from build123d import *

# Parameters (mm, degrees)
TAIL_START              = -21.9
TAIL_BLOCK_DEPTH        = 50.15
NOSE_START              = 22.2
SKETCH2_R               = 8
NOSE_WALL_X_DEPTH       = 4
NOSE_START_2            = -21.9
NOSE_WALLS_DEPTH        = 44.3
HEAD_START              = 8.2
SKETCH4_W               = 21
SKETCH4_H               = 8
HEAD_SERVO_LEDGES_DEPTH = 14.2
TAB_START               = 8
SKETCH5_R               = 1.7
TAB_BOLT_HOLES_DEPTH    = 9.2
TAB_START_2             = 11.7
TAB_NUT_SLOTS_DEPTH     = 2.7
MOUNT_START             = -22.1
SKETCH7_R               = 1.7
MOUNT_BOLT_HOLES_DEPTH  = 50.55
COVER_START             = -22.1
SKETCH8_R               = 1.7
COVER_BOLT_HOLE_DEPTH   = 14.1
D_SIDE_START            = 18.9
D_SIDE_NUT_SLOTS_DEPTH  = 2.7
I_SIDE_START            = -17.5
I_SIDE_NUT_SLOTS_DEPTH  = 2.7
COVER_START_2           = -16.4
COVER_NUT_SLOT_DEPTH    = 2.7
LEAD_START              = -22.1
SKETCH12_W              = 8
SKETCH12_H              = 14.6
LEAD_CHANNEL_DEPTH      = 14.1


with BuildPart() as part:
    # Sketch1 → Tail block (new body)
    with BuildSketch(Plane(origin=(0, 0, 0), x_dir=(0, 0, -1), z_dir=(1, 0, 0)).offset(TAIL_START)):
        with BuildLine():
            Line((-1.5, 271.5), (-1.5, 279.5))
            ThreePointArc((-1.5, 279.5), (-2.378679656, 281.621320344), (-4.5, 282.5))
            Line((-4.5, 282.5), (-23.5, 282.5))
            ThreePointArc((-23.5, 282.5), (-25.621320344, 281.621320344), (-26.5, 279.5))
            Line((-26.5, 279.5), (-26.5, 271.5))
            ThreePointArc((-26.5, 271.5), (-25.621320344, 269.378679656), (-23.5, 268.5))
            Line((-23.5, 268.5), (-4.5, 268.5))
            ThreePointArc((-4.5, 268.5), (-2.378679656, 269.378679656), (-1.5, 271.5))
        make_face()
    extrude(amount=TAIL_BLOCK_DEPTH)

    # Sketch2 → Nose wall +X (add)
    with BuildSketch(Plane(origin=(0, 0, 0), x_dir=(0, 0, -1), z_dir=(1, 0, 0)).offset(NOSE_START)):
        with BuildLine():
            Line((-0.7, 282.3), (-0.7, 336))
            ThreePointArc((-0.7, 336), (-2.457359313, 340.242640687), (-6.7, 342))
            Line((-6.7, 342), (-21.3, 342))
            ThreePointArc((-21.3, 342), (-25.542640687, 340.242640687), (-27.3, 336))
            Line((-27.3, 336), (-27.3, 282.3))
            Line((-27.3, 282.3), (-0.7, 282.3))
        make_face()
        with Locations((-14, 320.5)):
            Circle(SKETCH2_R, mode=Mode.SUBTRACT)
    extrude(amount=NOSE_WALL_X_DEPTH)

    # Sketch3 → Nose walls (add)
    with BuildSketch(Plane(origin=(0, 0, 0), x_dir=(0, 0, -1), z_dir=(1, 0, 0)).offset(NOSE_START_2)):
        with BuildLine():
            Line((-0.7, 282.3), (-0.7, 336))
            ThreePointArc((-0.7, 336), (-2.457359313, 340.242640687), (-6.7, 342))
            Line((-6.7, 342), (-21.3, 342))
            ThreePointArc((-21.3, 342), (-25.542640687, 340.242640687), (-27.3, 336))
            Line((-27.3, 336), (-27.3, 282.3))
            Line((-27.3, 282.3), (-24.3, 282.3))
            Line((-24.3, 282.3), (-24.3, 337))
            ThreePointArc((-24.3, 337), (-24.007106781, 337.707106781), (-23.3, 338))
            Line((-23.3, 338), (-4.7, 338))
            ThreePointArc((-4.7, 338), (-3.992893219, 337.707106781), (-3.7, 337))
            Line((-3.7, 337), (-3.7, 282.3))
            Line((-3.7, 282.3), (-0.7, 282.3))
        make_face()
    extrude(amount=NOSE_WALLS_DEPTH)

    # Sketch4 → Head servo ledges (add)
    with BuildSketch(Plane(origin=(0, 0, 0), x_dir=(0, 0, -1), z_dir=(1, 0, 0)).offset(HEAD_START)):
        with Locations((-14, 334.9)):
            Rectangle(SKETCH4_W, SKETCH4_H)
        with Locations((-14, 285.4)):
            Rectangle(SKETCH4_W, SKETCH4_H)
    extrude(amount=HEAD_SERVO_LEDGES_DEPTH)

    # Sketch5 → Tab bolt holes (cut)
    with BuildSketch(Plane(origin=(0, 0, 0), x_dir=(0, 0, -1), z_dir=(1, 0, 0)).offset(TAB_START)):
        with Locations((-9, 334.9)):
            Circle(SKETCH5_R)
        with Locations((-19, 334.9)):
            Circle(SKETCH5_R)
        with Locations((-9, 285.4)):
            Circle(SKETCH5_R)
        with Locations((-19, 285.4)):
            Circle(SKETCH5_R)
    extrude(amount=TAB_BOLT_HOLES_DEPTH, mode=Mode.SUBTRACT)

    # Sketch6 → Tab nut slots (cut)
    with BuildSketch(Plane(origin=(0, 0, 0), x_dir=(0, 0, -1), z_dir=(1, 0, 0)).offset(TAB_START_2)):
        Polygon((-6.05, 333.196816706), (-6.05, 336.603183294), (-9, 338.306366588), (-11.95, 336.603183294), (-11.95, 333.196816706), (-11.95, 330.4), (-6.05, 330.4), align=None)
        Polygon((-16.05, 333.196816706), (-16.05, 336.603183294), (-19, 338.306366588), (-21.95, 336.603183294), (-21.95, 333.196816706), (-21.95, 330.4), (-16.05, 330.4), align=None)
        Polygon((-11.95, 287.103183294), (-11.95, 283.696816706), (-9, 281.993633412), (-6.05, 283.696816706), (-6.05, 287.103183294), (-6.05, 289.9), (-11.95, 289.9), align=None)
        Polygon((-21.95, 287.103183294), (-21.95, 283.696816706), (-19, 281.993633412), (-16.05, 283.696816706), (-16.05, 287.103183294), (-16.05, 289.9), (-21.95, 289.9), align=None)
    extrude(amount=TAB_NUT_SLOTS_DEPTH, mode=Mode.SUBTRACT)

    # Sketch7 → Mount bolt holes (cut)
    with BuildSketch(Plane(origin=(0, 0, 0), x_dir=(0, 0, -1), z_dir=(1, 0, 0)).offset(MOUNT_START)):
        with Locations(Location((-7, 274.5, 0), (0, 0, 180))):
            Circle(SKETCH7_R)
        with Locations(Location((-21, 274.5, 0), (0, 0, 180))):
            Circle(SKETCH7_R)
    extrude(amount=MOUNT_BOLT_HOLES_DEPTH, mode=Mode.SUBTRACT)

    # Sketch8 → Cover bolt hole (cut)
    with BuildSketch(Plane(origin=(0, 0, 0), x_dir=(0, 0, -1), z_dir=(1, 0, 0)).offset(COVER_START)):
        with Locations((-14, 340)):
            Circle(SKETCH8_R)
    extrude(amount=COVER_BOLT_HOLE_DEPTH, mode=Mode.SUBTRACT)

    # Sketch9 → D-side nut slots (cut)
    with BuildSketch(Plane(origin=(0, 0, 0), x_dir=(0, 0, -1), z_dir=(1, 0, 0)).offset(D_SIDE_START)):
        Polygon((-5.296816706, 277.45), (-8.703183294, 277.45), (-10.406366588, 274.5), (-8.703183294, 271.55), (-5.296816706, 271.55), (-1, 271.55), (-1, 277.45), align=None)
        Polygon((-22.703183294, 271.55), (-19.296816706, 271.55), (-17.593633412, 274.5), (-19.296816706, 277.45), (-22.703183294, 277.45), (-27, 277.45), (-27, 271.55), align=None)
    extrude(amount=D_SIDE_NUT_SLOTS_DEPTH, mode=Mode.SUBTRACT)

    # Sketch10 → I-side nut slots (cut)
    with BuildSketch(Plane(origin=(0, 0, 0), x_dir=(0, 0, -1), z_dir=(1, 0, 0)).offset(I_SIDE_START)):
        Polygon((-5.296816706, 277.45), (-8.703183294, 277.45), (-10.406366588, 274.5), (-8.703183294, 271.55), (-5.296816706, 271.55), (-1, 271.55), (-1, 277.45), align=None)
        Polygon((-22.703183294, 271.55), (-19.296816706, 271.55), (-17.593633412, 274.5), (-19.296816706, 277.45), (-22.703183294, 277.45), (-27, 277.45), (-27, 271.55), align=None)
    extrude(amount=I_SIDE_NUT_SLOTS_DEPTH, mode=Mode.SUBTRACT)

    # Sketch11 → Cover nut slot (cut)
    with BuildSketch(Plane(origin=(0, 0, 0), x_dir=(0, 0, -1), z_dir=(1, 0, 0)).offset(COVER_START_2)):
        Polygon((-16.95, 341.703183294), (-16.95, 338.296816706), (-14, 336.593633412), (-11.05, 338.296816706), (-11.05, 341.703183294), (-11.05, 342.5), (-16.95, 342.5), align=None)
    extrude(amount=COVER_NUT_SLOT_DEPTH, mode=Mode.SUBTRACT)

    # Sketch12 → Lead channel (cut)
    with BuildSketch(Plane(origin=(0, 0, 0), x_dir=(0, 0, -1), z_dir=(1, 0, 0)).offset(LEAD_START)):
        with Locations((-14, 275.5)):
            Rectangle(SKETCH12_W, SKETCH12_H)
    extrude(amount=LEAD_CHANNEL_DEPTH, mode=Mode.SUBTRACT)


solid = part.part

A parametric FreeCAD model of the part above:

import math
import FreeCAD as App
import Part
import Sketcher

V = App.Vector
Q = App.Units.Quantity

doc = App.newDocument("Part")
body = doc.addObject("PartDesign::Body", "Body")

sketch1 = doc.addObject("Sketcher::SketchObject", "Sketch")
body.addObject(sketch1)
sketch1.AttachmentSupport = (doc.YZ_Plane, [""])
sketch1.MapMode = "FlatFace"
sketch1.AttachmentOffset = App.Placement(V(0, 0, -21.9), App.Rotation())
sketch1.addGeometry(Part.LineSegment(V(271.5, 1.5, 0), V(279.5, 1.5, 0)), False)
sketch1.addGeometry(Part.ArcOfCircle(Part.Circle(V(279.5, 4.5, 0), V(0, 0, 1), 3), math.radians(-90), math.radians(0)), False)
sketch1.addGeometry(Part.LineSegment(V(282.5, 4.5, 0), V(282.5, 23.5, 0)), False)
sketch1.addGeometry(Part.ArcOfCircle(Part.Circle(V(279.5, 23.5, 0), V(0, 0, 1), 3), math.radians(0), math.radians(90)), False)
sketch1.addGeometry(Part.LineSegment(V(279.5, 26.5, 0), V(271.5, 26.5, 0)), False)
sketch1.addGeometry(Part.ArcOfCircle(Part.Circle(V(271.5, 23.5, 0), V(0, 0, 1), 3), math.radians(90), math.radians(180)), False)
sketch1.addGeometry(Part.LineSegment(V(268.5, 23.5, 0), V(268.5, 4.5, 0)), False)
sketch1.addGeometry(Part.ArcOfCircle(Part.Circle(V(271.5, 4.5, 0), V(0, 0, 1), 3), math.radians(180), math.radians(270)), False)
sketch1.addConstraint(Sketcher.Constraint("Tangent", 0, 2, 1, 1))
sketch1.addConstraint(Sketcher.Constraint("Tangent", 1, 2, 2, 1))
sketch1.addConstraint(Sketcher.Constraint("Tangent", 2, 2, 3, 1))
sketch1.addConstraint(Sketcher.Constraint("Tangent", 3, 2, 4, 1))
sketch1.addConstraint(Sketcher.Constraint("Tangent", 4, 2, 5, 1))
sketch1.addConstraint(Sketcher.Constraint("Tangent", 5, 2, 6, 1))
sketch1.addConstraint(Sketcher.Constraint("Tangent", 6, 2, 7, 1))
sketch1.addConstraint(Sketcher.Constraint("Tangent", 7, 2, 0, 1))
sketch1.addConstraint(Sketcher.Constraint("Horizontal", 0))
sketch1.addConstraint(Sketcher.Constraint("Vertical", 2))
sketch1.addConstraint(Sketcher.Constraint("Horizontal", 4))
sketch1.addConstraint(Sketcher.Constraint("Vertical", 6))
sketch1.addConstraint(Sketcher.Constraint("Equal", 1, 3))
sketch1.addConstraint(Sketcher.Constraint("Equal", 3, 5))
sketch1.addConstraint(Sketcher.Constraint("Equal", 5, 7))
sketch1.addConstraint(Sketcher.Constraint("Radius", 1, 3.0))
sketch1.addConstraint(Sketcher.Constraint("DistanceX", 0, 1, 0, 2, 8.0))
sketch1.addConstraint(Sketcher.Constraint("DistanceY", 2, 1, 2, 2, 19.0))
sketch1.addConstraint(Sketcher.Constraint("DistanceX", -1, 1, 1, 3, 279.5))
sketch1.addConstraint(Sketcher.Constraint("DistanceY", -1, 1, 1, 3, 4.5))
pad1 = doc.addObject("PartDesign::Pad", "Pad")
body.addObject(pad1)
pad1.Profile = sketch1
pad1.Length = 50.15

sketch2 = doc.addObject("Sketcher::SketchObject", "Sketch001")
body.addObject(sketch2)
sketch2.AttachmentSupport = (doc.YZ_Plane, [""])
sketch2.MapMode = "FlatFace"
sketch2.AttachmentOffset = App.Placement(V(0, 0, 22.2), App.Rotation())
sketch2.addGeometry(Part.LineSegment(V(282, 1, 0), V(336, 1, 0)), False)
sketch2.addGeometry(Part.ArcOfCircle(Part.Circle(V(336, 7, 0), V(0, 0, 1), 6), math.radians(-90), math.radians(0)), False)
sketch2.addGeometry(Part.LineSegment(V(342, 7, 0), V(342, 21, 0)), False)
sketch2.addGeometry(Part.ArcOfCircle(Part.Circle(V(336, 21, 0), V(0, 0, 1), 6), math.radians(0), math.radians(90)), False)
sketch2.addGeometry(Part.LineSegment(V(336, 27, 0), V(282, 27, 0)), False)
sketch2.addGeometry(Part.LineSegment(V(282, 27, 0), V(282, 1, 0)), False)
sketch2.addGeometry(Part.Circle(V(320, 14, 0), V(0, 0, 1), 8), False)
sketch2.addConstraint(Sketcher.Constraint("Tangent", 0, 2, 1, 1))
sketch2.addConstraint(Sketcher.Constraint("Tangent", 1, 2, 2, 1))
sketch2.addConstraint(Sketcher.Constraint("Tangent", 2, 2, 3, 1))
sketch2.addConstraint(Sketcher.Constraint("Tangent", 3, 2, 4, 1))
sketch2.addConstraint(Sketcher.Constraint("Coincident", 4, 2, 5, 1))
sketch2.addConstraint(Sketcher.Constraint("Coincident", 5, 2, 0, 1))
sketch2.addConstraint(Sketcher.Constraint("Horizontal", 0))
sketch2.addConstraint(Sketcher.Constraint("Vertical", 2))
sketch2.addConstraint(Sketcher.Constraint("Horizontal", 4))
sketch2.addConstraint(Sketcher.Constraint("Vertical", 5))
sketch2.addConstraint(Sketcher.Constraint("Equal", 1, 3))
sketch2.addConstraint(Sketcher.Constraint("Diameter", 6, 16.0))
sketch2.addConstraint(Sketcher.Constraint("Radius", 1, 6.0))
sketch2.addConstraint(Sketcher.Constraint("DistanceX", 0, 1, 0, 2, 53.7))
sketch2.addConstraint(Sketcher.Constraint("DistanceY", 2, 1, 2, 2, 14.6))
sketch2.addConstraint(Sketcher.Constraint("DistanceX", -1, 1, 1, 3, 336.0))
sketch2.addConstraint(Sketcher.Constraint("DistanceY", -1, 1, 6, 3, 14.0))
sketch2.addConstraint(Sketcher.Constraint("DistanceY", -1, 1, 1, 3, 6.7))
sketch2.addConstraint(Sketcher.Constraint("DistanceX", -1, 1, 6, 3, 320.5))
pad2 = doc.addObject("PartDesign::Pad", "Pad001")
body.addObject(pad2)
pad2.Profile = sketch2
pad2.Length = 4

sketch3 = doc.addObject("Sketcher::SketchObject", "Sketch002")
body.addObject(sketch3)
sketch3.AttachmentSupport = (doc.YZ_Plane, [""])
sketch3.MapMode = "FlatFace"
sketch3.AttachmentOffset = App.Placement(V(0, 0, -21.9), App.Rotation())
sketch3.addGeometry(Part.LineSegment(V(282.3, 0.7, 0), V(336, 0.7, 0)), False)
sketch3.addGeometry(Part.ArcOfCircle(Part.Circle(V(336, 6.7, 0), V(0, 0, 1), 6), math.radians(-90), math.radians(0)), False)
sketch3.addGeometry(Part.LineSegment(V(342, 6.7, 0), V(342, 21.3, 0)), False)
sketch3.addGeometry(Part.ArcOfCircle(Part.Circle(V(336, 21.3, 0), V(0, 0, 1), 6), math.radians(0), math.radians(90)), False)
sketch3.addGeometry(Part.LineSegment(V(336, 27.3, 0), V(282.3, 27.3, 0)), False)
sketch3.addGeometry(Part.LineSegment(V(282.3, 27.3, 0), V(282.3, 24.3, 0)), False)
sketch3.addGeometry(Part.LineSegment(V(282.3, 24.3, 0), V(337, 24.3, 0)), False)
sketch3.addGeometry(Part.ArcOfCircle(Part.Circle(V(337, 23.3, 0), V(0, 0, 1), 1), math.radians(0), math.radians(90)), False)
sketch3.addGeometry(Part.LineSegment(V(338, 23.3, 0), V(338, 4.7, 0)), False)
sketch3.addGeometry(Part.ArcOfCircle(Part.Circle(V(337, 4.7, 0), V(0, 0, 1), 1), math.radians(-90), math.radians(0)), False)
sketch3.addGeometry(Part.LineSegment(V(337, 3.7, 0), V(282.3, 3.7, 0)), False)
sketch3.addGeometry(Part.LineSegment(V(282.3, 3.7, 0), V(282.3, 0.7, 0)), False)
sketch3.addConstraint(Sketcher.Constraint("Tangent", 0, 2, 1, 1))
sketch3.addConstraint(Sketcher.Constraint("Tangent", 1, 2, 2, 1))
sketch3.addConstraint(Sketcher.Constraint("Tangent", 2, 2, 3, 1))
sketch3.addConstraint(Sketcher.Constraint("Tangent", 3, 2, 4, 1))
sketch3.addConstraint(Sketcher.Constraint("Coincident", 4, 2, 5, 1))
sketch3.addConstraint(Sketcher.Constraint("Coincident", 5, 2, 6, 1))
sketch3.addConstraint(Sketcher.Constraint("Tangent", 6, 2, 7, 2))
sketch3.addConstraint(Sketcher.Constraint("Tangent", 7, 1, 8, 1))
sketch3.addConstraint(Sketcher.Constraint("Tangent", 8, 2, 9, 2))
sketch3.addConstraint(Sketcher.Constraint("Tangent", 9, 1, 10, 1))
sketch3.addConstraint(Sketcher.Constraint("Coincident", 10, 2, 11, 1))
sketch3.addConstraint(Sketcher.Constraint("Coincident", 11, 2, 0, 1))
sketch3.addConstraint(Sketcher.Constraint("Horizontal", 0))
sketch3.addConstraint(Sketcher.Constraint("Vertical", 2))
sketch3.addConstraint(Sketcher.Constraint("Horizontal", 4))
sketch3.addConstraint(Sketcher.Constraint("Vertical", 5))
sketch3.addConstraint(Sketcher.Constraint("Horizontal", 6))
sketch3.addConstraint(Sketcher.Constraint("Vertical", 8))
sketch3.addConstraint(Sketcher.Constraint("Horizontal", 10))
sketch3.addConstraint(Sketcher.Constraint("Vertical", 11))
sketch3.addConstraint(Sketcher.Constraint("Equal", 1, 3))
sketch3.addConstraint(Sketcher.Constraint("Equal", 7, 9))
sketch3.addConstraint(Sketcher.Constraint("Vertical", 5, 2, 10, 2))
sketch3.addConstraint(Sketcher.Constraint("Equal", 5, 11))
sketch3.addConstraint(Sketcher.Constraint("Radius", 1, 6.0))
sketch3.addConstraint(Sketcher.Constraint("Radius", 7, 1.0))
sketch3.addConstraint(Sketcher.Constraint("DistanceY", 5, 2, 5, 1, 3.0))
sketch3.addConstraint(Sketcher.Constraint("DistanceX", 0, 1, 0, 2, 53.7))
sketch3.addConstraint(Sketcher.Constraint("DistanceX", 6, 1, 6, 2, 54.7))
sketch3.addConstraint(Sketcher.Constraint("DistanceY", 2, 1, 2, 2, 14.6))
sketch3.addConstraint(Sketcher.Constraint("DistanceX", -1, 1, 1, 3, 336.0))
sketch3.addConstraint(Sketcher.Constraint("DistanceY", -1, 1, 1, 3, 6.7))
pad3 = doc.addObject("PartDesign::Pad", "Pad002")
body.addObject(pad3)
pad3.Profile = sketch3
pad3.Length = 44.3

sketch4 = doc.addObject("Sketcher::SketchObject", "Sketch003")
body.addObject(sketch4)
sketch4.AttachmentSupport = (doc.YZ_Plane, [""])
sketch4.MapMode = "FlatFace"
sketch4.AttachmentOffset = App.Placement(V(0, 0, 8.2), App.Rotation())
sketch4.addGeometry(Part.LineSegment(V(339, 24, 0), V(331, 24, 0)), False)
sketch4.addGeometry(Part.LineSegment(V(331, 24, 0), V(331, 4, 0)), False)
sketch4.addGeometry(Part.LineSegment(V(331, 4, 0), V(339, 4, 0)), False)
sketch4.addGeometry(Part.LineSegment(V(339, 4, 0), V(339, 24, 0)), False)
sketch4.addGeometry(Part.LineSegment(V(289, 24, 0), V(281, 24, 0)), False)
sketch4.addGeometry(Part.LineSegment(V(281, 24, 0), V(281, 4, 0)), False)
sketch4.addGeometry(Part.LineSegment(V(281, 4, 0), V(289, 4, 0)), False)
sketch4.addGeometry(Part.LineSegment(V(289, 4, 0), V(289, 24, 0)), False)
sketch4.addConstraint(Sketcher.Constraint("Coincident", 0, 2, 1, 1))
sketch4.addConstraint(Sketcher.Constraint("Coincident", 1, 2, 2, 1))
sketch4.addConstraint(Sketcher.Constraint("Coincident", 2, 2, 3, 1))
sketch4.addConstraint(Sketcher.Constraint("Coincident", 3, 2, 0, 1))
sketch4.addConstraint(Sketcher.Constraint("Coincident", 4, 2, 5, 1))
sketch4.addConstraint(Sketcher.Constraint("Coincident", 5, 2, 6, 1))
sketch4.addConstraint(Sketcher.Constraint("Coincident", 6, 2, 7, 1))
sketch4.addConstraint(Sketcher.Constraint("Coincident", 7, 2, 4, 1))
sketch4.addConstraint(Sketcher.Constraint("Horizontal", 0))
sketch4.addConstraint(Sketcher.Constraint("Vertical", 1))
sketch4.addConstraint(Sketcher.Constraint("Horizontal", 2))
sketch4.addConstraint(Sketcher.Constraint("Vertical", 3))
sketch4.addConstraint(Sketcher.Constraint("Horizontal", 4))
sketch4.addConstraint(Sketcher.Constraint("Vertical", 5))
sketch4.addConstraint(Sketcher.Constraint("Horizontal", 6))
sketch4.addConstraint(Sketcher.Constraint("Vertical", 7))
sketch4.addConstraint(Sketcher.Constraint("Horizontal", 3, 2, 4, 2))
sketch4.addConstraint(Sketcher.Constraint("Horizontal", 2, 2, 5, 2))
sketch4.addConstraint(Sketcher.Constraint("Equal", 2, 4))
sketch4.addConstraint(Sketcher.Constraint("DistanceX", 0, 2, 0, 1, 8.0))
sketch4.addConstraint(Sketcher.Constraint("DistanceY", 1, 2, 1, 1, 21.0))
sketch4.addConstraint(Sketcher.Constraint("DistanceX", -1, 1, 0, 2, 330.9))
sketch4.addConstraint(Sketcher.Constraint("DistanceY", -1, 1, 0, 2, 24.5))
sketch4.addConstraint(Sketcher.Constraint("DistanceX", -1, 1, 4, 2, 281.4))
pad4 = doc.addObject("PartDesign::Pad", "Pad003")
body.addObject(pad4)
pad4.Profile = sketch4
pad4.Length = 14.2

sketch5 = doc.addObject("Sketcher::SketchObject", "Sketch004")
body.addObject(sketch5)
sketch5.AttachmentSupport = (doc.YZ_Plane, [""])
sketch5.MapMode = "FlatFace"
sketch5.AttachmentOffset = App.Placement(V(0, 0, 8), App.Rotation())
sketch5.addGeometry(Part.Circle(V(334.9, 9, 0), V(0, 0, 1), 1.7), False)
sketch5.addGeometry(Part.Circle(V(334.9, 19, 0), V(0, 0, 1), 1.7), False)
sketch5.addGeometry(Part.Circle(V(285.4, 9, 0), V(0, 0, 1), 1.7), False)
sketch5.addGeometry(Part.Circle(V(285.4, 19, 0), V(0, 0, 1), 1.7), False)
sketch5.addConstraint(Sketcher.Constraint("Equal", 0, 1))
sketch5.addConstraint(Sketcher.Constraint("Equal", 1, 2))
sketch5.addConstraint(Sketcher.Constraint("Equal", 2, 3))
sketch5.addConstraint(Sketcher.Constraint("Horizontal", 0, 3, 2, 3))
sketch5.addConstraint(Sketcher.Constraint("Horizontal", 1, 3, 3, 3))
sketch5.addConstraint(Sketcher.Constraint("Vertical", 0, 3, 1, 3))
sketch5.addConstraint(Sketcher.Constraint("Vertical", 2, 3, 3, 3))
sketch5.addConstraint(Sketcher.Constraint("Diameter", 0, 3.4))
sketch5.addConstraint(Sketcher.Constraint("DistanceY", -1, 1, 0, 3, 9.0))
sketch5.addConstraint(Sketcher.Constraint("DistanceY", -1, 1, 1, 3, 19.0))
sketch5.addConstraint(Sketcher.Constraint("DistanceX", -1, 1, 0, 3, 334.9))
sketch5.addConstraint(Sketcher.Constraint("DistanceX", -1, 1, 2, 3, 285.4))
pocket1 = doc.addObject("PartDesign::Pocket", "Pocket")
body.addObject(pocket1)
pocket1.Profile = sketch5
pocket1.Length = 9.2
pocket1.Reversed = True

sketch6 = doc.addObject("Sketcher::SketchObject", "Sketch005")
body.addObject(sketch6)
sketch6.AttachmentSupport = (doc.YZ_Plane, [""])
sketch6.MapMode = "FlatFace"
sketch6.AttachmentOffset = App.Placement(V(0, 0, 11.7), App.Rotation())
sketch6.addGeometry(Part.LineSegment(V(336.6, 6, 0), V(338.3, 9, 0)), False)
sketch6.addGeometry(Part.LineSegment(V(338.3, 9, 0), V(336.6, 11.9, 0)), False)
sketch6.addGeometry(Part.LineSegment(V(336.6, 11.9, 0), V(330.4, 11.9, 0)), False)
sketch6.addGeometry(Part.LineSegment(V(330.4, 11.9, 0), V(330.4, 6, 0)), False)
sketch6.addGeometry(Part.LineSegment(V(330.4, 6, 0), V(336.6, 6, 0)), False)
sketch6.addGeometry(Part.LineSegment(V(336.6, 16.1, 0), V(338.3, 19, 0)), False)
sketch6.addGeometry(Part.LineSegment(V(338.3, 19, 0), V(336.6, 21.9, 0)), False)
sketch6.addGeometry(Part.LineSegment(V(336.6, 21.9, 0), V(330.4, 21.9, 0)), False)
sketch6.addGeometry(Part.LineSegment(V(330.4, 21.9, 0), V(330.4, 16.1, 0)), False)
sketch6.addGeometry(Part.LineSegment(V(330.4, 16.1, 0), V(336.6, 16.1, 0)), False)
sketch6.addGeometry(Part.LineSegment(V(283.7, 11.9, 0), V(282, 9, 0)), False)
sketch6.addGeometry(Part.LineSegment(V(282, 9, 0), V(283.7, 6, 0)), False)
sketch6.addGeometry(Part.LineSegment(V(283.7, 6, 0), V(289.9, 6, 0)), False)
sketch6.addGeometry(Part.LineSegment(V(289.9, 6, 0), V(289.9, 11.9, 0)), False)
sketch6.addGeometry(Part.LineSegment(V(289.9, 11.9, 0), V(283.7, 11.9, 0)), False)
sketch6.addGeometry(Part.LineSegment(V(283.7, 21.9, 0), V(282, 19, 0)), False)
sketch6.addGeometry(Part.LineSegment(V(282, 19, 0), V(283.7, 16.1, 0)), False)
sketch6.addGeometry(Part.LineSegment(V(283.7, 16.1, 0), V(289.9, 16.1, 0)), False)
sketch6.addGeometry(Part.LineSegment(V(289.9, 16.1, 0), V(289.9, 21.9, 0)), False)
sketch6.addGeometry(Part.LineSegment(V(289.9, 21.9, 0), V(283.7, 21.9, 0)), False)
sketch6.addConstraint(Sketcher.Constraint("Coincident", 0, 2, 1, 1))
sketch6.addConstraint(Sketcher.Constraint("Coincident", 1, 2, 2, 1))
sketch6.addConstraint(Sketcher.Constraint("Coincident", 2, 2, 3, 1))
sketch6.addConstraint(Sketcher.Constraint("Coincident", 3, 2, 4, 1))
sketch6.addConstraint(Sketcher.Constraint("Coincident", 4, 2, 0, 1))
sketch6.addConstraint(Sketcher.Constraint("Coincident", 5, 2, 6, 1))
sketch6.addConstraint(Sketcher.Constraint("Coincident", 6, 2, 7, 1))
sketch6.addConstraint(Sketcher.Constraint("Coincident", 7, 2, 8, 1))
sketch6.addConstraint(Sketcher.Constraint("Coincident", 8, 2, 9, 1))
sketch6.addConstraint(Sketcher.Constraint("Coincident", 9, 2, 5, 1))
sketch6.addConstraint(Sketcher.Constraint("Coincident", 10, 2, 11, 1))
sketch6.addConstraint(Sketcher.Constraint("Coincident", 11, 2, 12, 1))
sketch6.addConstraint(Sketcher.Constraint("Coincident", 12, 2, 13, 1))
sketch6.addConstraint(Sketcher.Constraint("Coincident", 13, 2, 14, 1))
sketch6.addConstraint(Sketcher.Constraint("Coincident", 14, 2, 10, 1))
sketch6.addConstraint(Sketcher.Constraint("Coincident", 15, 2, 16, 1))
sketch6.addConstraint(Sketcher.Constraint("Coincident", 16, 2, 17, 1))
sketch6.addConstraint(Sketcher.Constraint("Coincident", 17, 2, 18, 1))
sketch6.addConstraint(Sketcher.Constraint("Coincident", 18, 2, 19, 1))
sketch6.addConstraint(Sketcher.Constraint("Coincident", 19, 2, 15, 1))
sketch6.addConstraint(Sketcher.Constraint("Horizontal", 2))
sketch6.addConstraint(Sketcher.Constraint("Vertical", 3))
sketch6.addConstraint(Sketcher.Constraint("Horizontal", 4))
sketch6.addConstraint(Sketcher.Constraint("Horizontal", 7))
sketch6.addConstraint(Sketcher.Constraint("Vertical", 8))
sketch6.addConstraint(Sketcher.Constraint("Horizontal", 9))
sketch6.addConstraint(Sketcher.Constraint("Horizontal", 12))
sketch6.addConstraint(Sketcher.Constraint("Vertical", 13))
sketch6.addConstraint(Sketcher.Constraint("Horizontal", 14))
sketch6.addConstraint(Sketcher.Constraint("Horizontal", 17))
sketch6.addConstraint(Sketcher.Constraint("Vertical", 18))
sketch6.addConstraint(Sketcher.Constraint("Horizontal", 19))
sketch6.addConstraint(Sketcher.Constraint("Parallel", 0, 5))
sketch6.addConstraint(Sketcher.Constraint("Parallel", 1, 6))
sketch6.addConstraint(Sketcher.Constraint("Parallel", 5, 10))
sketch6.addConstraint(Sketcher.Constraint("Parallel", 6, 11))
sketch6.addConstraint(Sketcher.Constraint("Parallel", 10, 15))
sketch6.addConstraint(Sketcher.Constraint("Parallel", 11, 16))
sketch6.addConstraint(Sketcher.Constraint("Horizontal", 0, 2, 10, 2))
sketch6.addConstraint(Sketcher.Constraint("Horizontal", 4, 2, 11, 2))
sketch6.addConstraint(Sketcher.Constraint("Horizontal", 2, 2, 13, 2))
sketch6.addConstraint(Sketcher.Constraint("Horizontal", 5, 2, 15, 2))
sketch6.addConstraint(Sketcher.Constraint("Horizontal", 9, 2, 16, 2))
sketch6.addConstraint(Sketcher.Constraint("Horizontal", 7, 2, 18, 2))
sketch6.addConstraint(Sketcher.Constraint("Vertical", 1, 2, 4, 2))
sketch6.addConstraint(Sketcher.Constraint("Vertical", 0, 2, 5, 2))
sketch6.addConstraint(Sketcher.Constraint("Vertical", 4, 2, 6, 2))
sketch6.addConstraint(Sketcher.Constraint("Vertical", 3, 2, 7, 2))
sketch6.addConstraint(Sketcher.Constraint("Vertical", 6, 2, 9, 2))
sketch6.addConstraint(Sketcher.Constraint("Vertical", 11, 2, 14, 2))
sketch6.addConstraint(Sketcher.Constraint("Vertical", 10, 2, 15, 2))
sketch6.addConstraint(Sketcher.Constraint("Vertical", 13, 2, 17, 2))
sketch6.addConstraint(Sketcher.Constraint("Equal", 9, 12))
sketch6.addConstraint(Sketcher.Constraint("Angle", 0, Q("60 deg")))
sketch6.addConstraint(Sketcher.Constraint("DistanceY", 3, 2, 3, 1, 5.9))
sketch6.addConstraint(Sketcher.Constraint("DistanceY", -1, 1, 0, 2, 9.0))
sketch6.addConstraint(Sketcher.Constraint("DistanceY", -1, 1, 5, 2, 19.0))
sketch6.addConstraint(Sketcher.Constraint("DistanceX", -1, 1, 2, 2, 330.4))
sketch6.addConstraint(Sketcher.Constraint("DistanceX", -1, 1, 12, 2, 289.9))
sketch6.addConstraint(Sketcher.Constraint("DistanceX", 2, 2, 2, 1, 6.203183))
pocket2 = doc.addObject("PartDesign::Pocket", "Pocket001")
body.addObject(pocket2)
pocket2.Profile = sketch6
pocket2.Length = 2.7
pocket2.Reversed = True

sketch7 = doc.addObject("Sketcher::SketchObject", "Sketch006")
body.addObject(sketch7)
sketch7.AttachmentSupport = (doc.YZ_Plane, [""])
sketch7.MapMode = "FlatFace"
sketch7.AttachmentOffset = App.Placement(V(0, 0, -22.1), App.Rotation())
sketch7.addGeometry(Part.Circle(V(274.5, 7, 0), V(0, 0, 1), 1.7), False)
sketch7.addGeometry(Part.Circle(V(274.5, 21, 0), V(0, 0, 1), 1.7), False)
sketch7.addConstraint(Sketcher.Constraint("Equal", 0, 1))
sketch7.addConstraint(Sketcher.Constraint("Vertical", 0, 3, 1, 3))
sketch7.addConstraint(Sketcher.Constraint("Diameter", 0, 3.4))
sketch7.addConstraint(Sketcher.Constraint("DistanceY", -1, 1, 0, 3, 7.0))
sketch7.addConstraint(Sketcher.Constraint("DistanceY", -1, 1, 1, 3, 21.0))
sketch7.addConstraint(Sketcher.Constraint("DistanceX", -1, 1, 0, 3, 274.5))
pocket3 = doc.addObject("PartDesign::Pocket", "Pocket002")
body.addObject(pocket3)
pocket3.Profile = sketch7
pocket3.Length = 50.55
pocket3.Reversed = True

sketch8 = doc.addObject("Sketcher::SketchObject", "Sketch007")
body.addObject(sketch8)
sketch8.AttachmentSupport = (doc.YZ_Plane, [""])
sketch8.MapMode = "FlatFace"
sketch8.AttachmentOffset = App.Placement(V(0, 0, -22.1), App.Rotation())
sketch8.addGeometry(Part.Circle(V(340, 14, 0), V(0, 0, 1), 1.7), False)
sketch8.addConstraint(Sketcher.Constraint("Diameter", 0, 3.4))
sketch8.addConstraint(Sketcher.Constraint("DistanceX", -1, 1, 0, 3, 340.0))
sketch8.addConstraint(Sketcher.Constraint("DistanceY", -1, 1, 0, 3, 14.0))
pocket4 = doc.addObject("PartDesign::Pocket", "Pocket003")
body.addObject(pocket4)
pocket4.Profile = sketch8
pocket4.Length = 14.1
pocket4.Reversed = True

sketch9 = doc.addObject("Sketcher::SketchObject", "Sketch008")
body.addObject(sketch9)
sketch9.AttachmentSupport = (doc.YZ_Plane, [""])
sketch9.MapMode = "FlatFace"
sketch9.AttachmentOffset = App.Placement(V(0, 0, 18.9), App.Rotation())
sketch9.addGeometry(Part.LineSegment(V(277.4, 8.7, 0), V(274.5, 10.4, 0)), False)
sketch9.addGeometry(Part.LineSegment(V(274.5, 10.4, 0), V(271.6, 8.7, 0)), False)
sketch9.addGeometry(Part.LineSegment(V(271.6, 8.7, 0), V(271.6, 1, 0)), False)
sketch9.addGeometry(Part.LineSegment(V(271.6, 1, 0), V(277.4, 1, 0)), False)
sketch9.addGeometry(Part.LineSegment(V(277.4, 1, 0), V(277.4, 8.7, 0)), False)
sketch9.addGeometry(Part.LineSegment(V(271.6, 19.3, 0), V(274.5, 17.6, 0)), False)
sketch9.addGeometry(Part.LineSegment(V(274.5, 17.6, 0), V(277.4, 19.3, 0)), False)
sketch9.addGeometry(Part.LineSegment(V(277.4, 19.3, 0), V(277.4, 27, 0)), False)
sketch9.addGeometry(Part.LineSegment(V(277.4, 27, 0), V(271.6, 27, 0)), False)
sketch9.addGeometry(Part.LineSegment(V(271.6, 27, 0), V(271.6, 19.3, 0)), False)
sketch9.addConstraint(Sketcher.Constraint("Coincident", 0, 2, 1, 1))
sketch9.addConstraint(Sketcher.Constraint("Coincident", 1, 2, 2, 1))
sketch9.addConstraint(Sketcher.Constraint("Coincident", 2, 2, 3, 1))
sketch9.addConstraint(Sketcher.Constraint("Coincident", 3, 2, 4, 1))
sketch9.addConstraint(Sketcher.Constraint("Coincident", 4, 2, 0, 1))
sketch9.addConstraint(Sketcher.Constraint("Coincident", 5, 2, 6, 1))
sketch9.addConstraint(Sketcher.Constraint("Coincident", 6, 2, 7, 1))
sketch9.addConstraint(Sketcher.Constraint("Coincident", 7, 2, 8, 1))
sketch9.addConstraint(Sketcher.Constraint("Coincident", 8, 2, 9, 1))
sketch9.addConstraint(Sketcher.Constraint("Coincident", 9, 2, 5, 1))
sketch9.addConstraint(Sketcher.Constraint("Vertical", 2))
sketch9.addConstraint(Sketcher.Constraint("Horizontal", 3))
sketch9.addConstraint(Sketcher.Constraint("Vertical", 4))
sketch9.addConstraint(Sketcher.Constraint("Vertical", 7))
sketch9.addConstraint(Sketcher.Constraint("Horizontal", 8))
sketch9.addConstraint(Sketcher.Constraint("Vertical", 9))
sketch9.addConstraint(Sketcher.Constraint("Parallel", 0, 5))
sketch9.addConstraint(Sketcher.Constraint("Parallel", 1, 6))
sketch9.addConstraint(Sketcher.Constraint("Horizontal", 1, 2, 4, 2))
sketch9.addConstraint(Sketcher.Constraint("Horizontal", 6, 2, 9, 2))
sketch9.addConstraint(Sketcher.Constraint("Vertical", 0, 2, 5, 2))
sketch9.addConstraint(Sketcher.Constraint("Vertical", 4, 2, 6, 2))
sketch9.addConstraint(Sketcher.Constraint("Vertical", 2, 2, 8, 2))
sketch9.addConstraint(Sketcher.Constraint("Equal", 4, 7))
sketch9.addConstraint(Sketcher.Constraint("Angle", 0, Q("150 deg")))
sketch9.addConstraint(Sketcher.Constraint("DistanceX", 3, 1, 3, 2, 5.9))
sketch9.addConstraint(Sketcher.Constraint("DistanceY", -1, 1, 2, 2, 1.0))
sketch9.addConstraint(Sketcher.Constraint("DistanceY", -1, 1, 7, 2, 27.0))
sketch9.addConstraint(Sketcher.Constraint("DistanceX", -1, 1, 0, 2, 274.5))
sketch9.addConstraint(Sketcher.Constraint("DistanceY", 2, 2, 2, 1, 7.703183))
pocket5 = doc.addObject("PartDesign::Pocket", "Pocket004")
body.addObject(pocket5)
pocket5.Profile = sketch9
pocket5.Length = 2.7
pocket5.Reversed = True

sketch10 = doc.addObject("Sketcher::SketchObject", "Sketch009")
body.addObject(sketch10)
sketch10.AttachmentSupport = (doc.YZ_Plane, [""])
sketch10.MapMode = "FlatFace"
sketch10.AttachmentOffset = App.Placement(V(0, 0, -17.5), App.Rotation())
sketch10.addGeometry(Part.LineSegment(V(277.4, 8.7, 0), V(274.5, 10.4, 0)), False)
sketch10.addGeometry(Part.LineSegment(V(274.5, 10.4, 0), V(271.6, 8.7, 0)), False)
sketch10.addGeometry(Part.LineSegment(V(271.6, 8.7, 0), V(271.6, 1, 0)), False)
sketch10.addGeometry(Part.LineSegment(V(271.6, 1, 0), V(277.4, 1, 0)), False)
sketch10.addGeometry(Part.LineSegment(V(277.4, 1, 0), V(277.4, 8.7, 0)), False)
sketch10.addGeometry(Part.LineSegment(V(271.6, 19.3, 0), V(274.5, 17.6, 0)), False)
sketch10.addGeometry(Part.LineSegment(V(274.5, 17.6, 0), V(277.4, 19.3, 0)), False)
sketch10.addGeometry(Part.LineSegment(V(277.4, 19.3, 0), V(277.4, 27, 0)), False)
sketch10.addGeometry(Part.LineSegment(V(277.4, 27, 0), V(271.6, 27, 0)), False)
sketch10.addGeometry(Part.LineSegment(V(271.6, 27, 0), V(271.6, 19.3, 0)), False)
sketch10.addConstraint(Sketcher.Constraint("Coincident", 0, 2, 1, 1))
sketch10.addConstraint(Sketcher.Constraint("Coincident", 1, 2, 2, 1))
sketch10.addConstraint(Sketcher.Constraint("Coincident", 2, 2, 3, 1))
sketch10.addConstraint(Sketcher.Constraint("Coincident", 3, 2, 4, 1))
sketch10.addConstraint(Sketcher.Constraint("Coincident", 4, 2, 0, 1))
sketch10.addConstraint(Sketcher.Constraint("Coincident", 5, 2, 6, 1))
sketch10.addConstraint(Sketcher.Constraint("Coincident", 6, 2, 7, 1))
sketch10.addConstraint(Sketcher.Constraint("Coincident", 7, 2, 8, 1))
sketch10.addConstraint(Sketcher.Constraint("Coincident", 8, 2, 9, 1))
sketch10.addConstraint(Sketcher.Constraint("Coincident", 9, 2, 5, 1))
sketch10.addConstraint(Sketcher.Constraint("Vertical", 2))
sketch10.addConstraint(Sketcher.Constraint("Horizontal", 3))
sketch10.addConstraint(Sketcher.Constraint("Vertical", 4))
sketch10.addConstraint(Sketcher.Constraint("Vertical", 7))
sketch10.addConstraint(Sketcher.Constraint("Horizontal", 8))
sketch10.addConstraint(Sketcher.Constraint("Vertical", 9))
sketch10.addConstraint(Sketcher.Constraint("Parallel", 0, 5))
sketch10.addConstraint(Sketcher.Constraint("Parallel", 1, 6))
sketch10.addConstraint(Sketcher.Constraint("Horizontal", 1, 2, 4, 2))
sketch10.addConstraint(Sketcher.Constraint("Horizontal", 6, 2, 9, 2))
sketch10.addConstraint(Sketcher.Constraint("Vertical", 0, 2, 5, 2))
sketch10.addConstraint(Sketcher.Constraint("Vertical", 4, 2, 6, 2))
sketch10.addConstraint(Sketcher.Constraint("Vertical", 2, 2, 8, 2))
sketch10.addConstraint(Sketcher.Constraint("Equal", 4, 7))
sketch10.addConstraint(Sketcher.Constraint("Angle", 0, Q("150 deg")))
sketch10.addConstraint(Sketcher.Constraint("DistanceX", 3, 1, 3, 2, 5.9))
sketch10.addConstraint(Sketcher.Constraint("DistanceY", -1, 1, 2, 2, 1.0))
sketch10.addConstraint(Sketcher.Constraint("DistanceY", -1, 1, 7, 2, 27.0))
sketch10.addConstraint(Sketcher.Constraint("DistanceX", -1, 1, 0, 2, 274.5))
sketch10.addConstraint(Sketcher.Constraint("DistanceY", 2, 2, 2, 1, 7.703183))
pocket6 = doc.addObject("PartDesign::Pocket", "Pocket005")
body.addObject(pocket6)
pocket6.Profile = sketch10
pocket6.Length = 2.7
pocket6.Reversed = True

sketch11 = doc.addObject("Sketcher::SketchObject", "Sketch010")
body.addObject(sketch11)
sketch11.AttachmentSupport = (doc.YZ_Plane, [""])
sketch11.MapMode = "FlatFace"
sketch11.AttachmentOffset = App.Placement(V(0, 0, -16.4), App.Rotation())
sketch11.addGeometry(Part.LineSegment(V(338.3, 16.9, 0), V(336.6, 14, 0)), False)
sketch11.addGeometry(Part.LineSegment(V(336.6, 14, 0), V(338.3, 11.1, 0)), False)
sketch11.addGeometry(Part.LineSegment(V(338.3, 11.1, 0), V(342.5, 11.1, 0)), False)
sketch11.addGeometry(Part.LineSegment(V(342.5, 11.1, 0), V(342.5, 16.9, 0)), False)
sketch11.addGeometry(Part.LineSegment(V(342.5, 16.9, 0), V(338.3, 16.9, 0)), False)
sketch11.addConstraint(Sketcher.Constraint("Coincident", 0, 2, 1, 1))
sketch11.addConstraint(Sketcher.Constraint("Coincident", 1, 2, 2, 1))
sketch11.addConstraint(Sketcher.Constraint("Coincident", 2, 2, 3, 1))
sketch11.addConstraint(Sketcher.Constraint("Coincident", 3, 2, 4, 1))
sketch11.addConstraint(Sketcher.Constraint("Coincident", 4, 2, 0, 1))
sketch11.addConstraint(Sketcher.Constraint("Horizontal", 2))
sketch11.addConstraint(Sketcher.Constraint("Vertical", 3))
sketch11.addConstraint(Sketcher.Constraint("Horizontal", 4))
sketch11.addConstraint(Sketcher.Constraint("Vertical", 1, 2, 4, 2))
sketch11.addConstraint(Sketcher.Constraint("Equal", 0, 1))
sketch11.addConstraint(Sketcher.Constraint("Angle", 0, Q("-120 deg")))
sketch11.addConstraint(Sketcher.Constraint("DistanceY", 3, 1, 3, 2, 5.9))
sketch11.addConstraint(Sketcher.Constraint("DistanceY", -1, 1, 0, 2, 14.0))
sketch11.addConstraint(Sketcher.Constraint("DistanceX", -1, 1, 2, 2, 342.5))
sketch11.addConstraint(Sketcher.Constraint("DistanceX", 2, 1, 2, 2, 4.203183))
pocket7 = doc.addObject("PartDesign::Pocket", "Pocket006")
body.addObject(pocket7)
pocket7.Profile = sketch11
pocket7.Length = 2.7
pocket7.Reversed = True

sketch12 = doc.addObject("Sketcher::SketchObject", "Sketch011")
body.addObject(sketch12)
sketch12.AttachmentSupport = (doc.YZ_Plane, [""])
sketch12.MapMode = "FlatFace"
sketch12.AttachmentOffset = App.Placement(V(0, 0, -22.1), App.Rotation())
sketch12.addGeometry(Part.LineSegment(V(283, 18, 0), V(268, 18, 0)), False)
sketch12.addGeometry(Part.LineSegment(V(268, 18, 0), V(268, 10, 0)), False)
sketch12.addGeometry(Part.LineSegment(V(268, 10, 0), V(283, 10, 0)), False)
sketch12.addGeometry(Part.LineSegment(V(283, 10, 0), V(283, 18, 0)), False)
sketch12.addConstraint(Sketcher.Constraint("Coincident", 0, 2, 1, 1))
sketch12.addConstraint(Sketcher.Constraint("Coincident", 1, 2, 2, 1))
sketch12.addConstraint(Sketcher.Constraint("Coincident", 2, 2, 3, 1))
sketch12.addConstraint(Sketcher.Constraint("Coincident", 3, 2, 0, 1))
sketch12.addConstraint(Sketcher.Constraint("Horizontal", 0))
sketch12.addConstraint(Sketcher.Constraint("Vertical", 1))
sketch12.addConstraint(Sketcher.Constraint("Horizontal", 2))
sketch12.addConstraint(Sketcher.Constraint("Vertical", 3))
sketch12.addConstraint(Sketcher.Constraint("DistanceY", 1, 2, 1, 1, 8.0))
sketch12.addConstraint(Sketcher.Constraint("DistanceX", 0, 2, 0, 1, 14.6))
sketch12.addConstraint(Sketcher.Constraint("DistanceY", -1, 1, 0, 2, 18.0))
sketch12.addConstraint(Sketcher.Constraint("DistanceX", -1, 1, 0, 2, 268.2))
pocket8 = doc.addObject("PartDesign::Pocket", "Pocket007")
body.addObject(pocket8)
pocket8.Profile = sketch12
pocket8.Length = 14.1
pocket8.Reversed = True

doc.recompute()
